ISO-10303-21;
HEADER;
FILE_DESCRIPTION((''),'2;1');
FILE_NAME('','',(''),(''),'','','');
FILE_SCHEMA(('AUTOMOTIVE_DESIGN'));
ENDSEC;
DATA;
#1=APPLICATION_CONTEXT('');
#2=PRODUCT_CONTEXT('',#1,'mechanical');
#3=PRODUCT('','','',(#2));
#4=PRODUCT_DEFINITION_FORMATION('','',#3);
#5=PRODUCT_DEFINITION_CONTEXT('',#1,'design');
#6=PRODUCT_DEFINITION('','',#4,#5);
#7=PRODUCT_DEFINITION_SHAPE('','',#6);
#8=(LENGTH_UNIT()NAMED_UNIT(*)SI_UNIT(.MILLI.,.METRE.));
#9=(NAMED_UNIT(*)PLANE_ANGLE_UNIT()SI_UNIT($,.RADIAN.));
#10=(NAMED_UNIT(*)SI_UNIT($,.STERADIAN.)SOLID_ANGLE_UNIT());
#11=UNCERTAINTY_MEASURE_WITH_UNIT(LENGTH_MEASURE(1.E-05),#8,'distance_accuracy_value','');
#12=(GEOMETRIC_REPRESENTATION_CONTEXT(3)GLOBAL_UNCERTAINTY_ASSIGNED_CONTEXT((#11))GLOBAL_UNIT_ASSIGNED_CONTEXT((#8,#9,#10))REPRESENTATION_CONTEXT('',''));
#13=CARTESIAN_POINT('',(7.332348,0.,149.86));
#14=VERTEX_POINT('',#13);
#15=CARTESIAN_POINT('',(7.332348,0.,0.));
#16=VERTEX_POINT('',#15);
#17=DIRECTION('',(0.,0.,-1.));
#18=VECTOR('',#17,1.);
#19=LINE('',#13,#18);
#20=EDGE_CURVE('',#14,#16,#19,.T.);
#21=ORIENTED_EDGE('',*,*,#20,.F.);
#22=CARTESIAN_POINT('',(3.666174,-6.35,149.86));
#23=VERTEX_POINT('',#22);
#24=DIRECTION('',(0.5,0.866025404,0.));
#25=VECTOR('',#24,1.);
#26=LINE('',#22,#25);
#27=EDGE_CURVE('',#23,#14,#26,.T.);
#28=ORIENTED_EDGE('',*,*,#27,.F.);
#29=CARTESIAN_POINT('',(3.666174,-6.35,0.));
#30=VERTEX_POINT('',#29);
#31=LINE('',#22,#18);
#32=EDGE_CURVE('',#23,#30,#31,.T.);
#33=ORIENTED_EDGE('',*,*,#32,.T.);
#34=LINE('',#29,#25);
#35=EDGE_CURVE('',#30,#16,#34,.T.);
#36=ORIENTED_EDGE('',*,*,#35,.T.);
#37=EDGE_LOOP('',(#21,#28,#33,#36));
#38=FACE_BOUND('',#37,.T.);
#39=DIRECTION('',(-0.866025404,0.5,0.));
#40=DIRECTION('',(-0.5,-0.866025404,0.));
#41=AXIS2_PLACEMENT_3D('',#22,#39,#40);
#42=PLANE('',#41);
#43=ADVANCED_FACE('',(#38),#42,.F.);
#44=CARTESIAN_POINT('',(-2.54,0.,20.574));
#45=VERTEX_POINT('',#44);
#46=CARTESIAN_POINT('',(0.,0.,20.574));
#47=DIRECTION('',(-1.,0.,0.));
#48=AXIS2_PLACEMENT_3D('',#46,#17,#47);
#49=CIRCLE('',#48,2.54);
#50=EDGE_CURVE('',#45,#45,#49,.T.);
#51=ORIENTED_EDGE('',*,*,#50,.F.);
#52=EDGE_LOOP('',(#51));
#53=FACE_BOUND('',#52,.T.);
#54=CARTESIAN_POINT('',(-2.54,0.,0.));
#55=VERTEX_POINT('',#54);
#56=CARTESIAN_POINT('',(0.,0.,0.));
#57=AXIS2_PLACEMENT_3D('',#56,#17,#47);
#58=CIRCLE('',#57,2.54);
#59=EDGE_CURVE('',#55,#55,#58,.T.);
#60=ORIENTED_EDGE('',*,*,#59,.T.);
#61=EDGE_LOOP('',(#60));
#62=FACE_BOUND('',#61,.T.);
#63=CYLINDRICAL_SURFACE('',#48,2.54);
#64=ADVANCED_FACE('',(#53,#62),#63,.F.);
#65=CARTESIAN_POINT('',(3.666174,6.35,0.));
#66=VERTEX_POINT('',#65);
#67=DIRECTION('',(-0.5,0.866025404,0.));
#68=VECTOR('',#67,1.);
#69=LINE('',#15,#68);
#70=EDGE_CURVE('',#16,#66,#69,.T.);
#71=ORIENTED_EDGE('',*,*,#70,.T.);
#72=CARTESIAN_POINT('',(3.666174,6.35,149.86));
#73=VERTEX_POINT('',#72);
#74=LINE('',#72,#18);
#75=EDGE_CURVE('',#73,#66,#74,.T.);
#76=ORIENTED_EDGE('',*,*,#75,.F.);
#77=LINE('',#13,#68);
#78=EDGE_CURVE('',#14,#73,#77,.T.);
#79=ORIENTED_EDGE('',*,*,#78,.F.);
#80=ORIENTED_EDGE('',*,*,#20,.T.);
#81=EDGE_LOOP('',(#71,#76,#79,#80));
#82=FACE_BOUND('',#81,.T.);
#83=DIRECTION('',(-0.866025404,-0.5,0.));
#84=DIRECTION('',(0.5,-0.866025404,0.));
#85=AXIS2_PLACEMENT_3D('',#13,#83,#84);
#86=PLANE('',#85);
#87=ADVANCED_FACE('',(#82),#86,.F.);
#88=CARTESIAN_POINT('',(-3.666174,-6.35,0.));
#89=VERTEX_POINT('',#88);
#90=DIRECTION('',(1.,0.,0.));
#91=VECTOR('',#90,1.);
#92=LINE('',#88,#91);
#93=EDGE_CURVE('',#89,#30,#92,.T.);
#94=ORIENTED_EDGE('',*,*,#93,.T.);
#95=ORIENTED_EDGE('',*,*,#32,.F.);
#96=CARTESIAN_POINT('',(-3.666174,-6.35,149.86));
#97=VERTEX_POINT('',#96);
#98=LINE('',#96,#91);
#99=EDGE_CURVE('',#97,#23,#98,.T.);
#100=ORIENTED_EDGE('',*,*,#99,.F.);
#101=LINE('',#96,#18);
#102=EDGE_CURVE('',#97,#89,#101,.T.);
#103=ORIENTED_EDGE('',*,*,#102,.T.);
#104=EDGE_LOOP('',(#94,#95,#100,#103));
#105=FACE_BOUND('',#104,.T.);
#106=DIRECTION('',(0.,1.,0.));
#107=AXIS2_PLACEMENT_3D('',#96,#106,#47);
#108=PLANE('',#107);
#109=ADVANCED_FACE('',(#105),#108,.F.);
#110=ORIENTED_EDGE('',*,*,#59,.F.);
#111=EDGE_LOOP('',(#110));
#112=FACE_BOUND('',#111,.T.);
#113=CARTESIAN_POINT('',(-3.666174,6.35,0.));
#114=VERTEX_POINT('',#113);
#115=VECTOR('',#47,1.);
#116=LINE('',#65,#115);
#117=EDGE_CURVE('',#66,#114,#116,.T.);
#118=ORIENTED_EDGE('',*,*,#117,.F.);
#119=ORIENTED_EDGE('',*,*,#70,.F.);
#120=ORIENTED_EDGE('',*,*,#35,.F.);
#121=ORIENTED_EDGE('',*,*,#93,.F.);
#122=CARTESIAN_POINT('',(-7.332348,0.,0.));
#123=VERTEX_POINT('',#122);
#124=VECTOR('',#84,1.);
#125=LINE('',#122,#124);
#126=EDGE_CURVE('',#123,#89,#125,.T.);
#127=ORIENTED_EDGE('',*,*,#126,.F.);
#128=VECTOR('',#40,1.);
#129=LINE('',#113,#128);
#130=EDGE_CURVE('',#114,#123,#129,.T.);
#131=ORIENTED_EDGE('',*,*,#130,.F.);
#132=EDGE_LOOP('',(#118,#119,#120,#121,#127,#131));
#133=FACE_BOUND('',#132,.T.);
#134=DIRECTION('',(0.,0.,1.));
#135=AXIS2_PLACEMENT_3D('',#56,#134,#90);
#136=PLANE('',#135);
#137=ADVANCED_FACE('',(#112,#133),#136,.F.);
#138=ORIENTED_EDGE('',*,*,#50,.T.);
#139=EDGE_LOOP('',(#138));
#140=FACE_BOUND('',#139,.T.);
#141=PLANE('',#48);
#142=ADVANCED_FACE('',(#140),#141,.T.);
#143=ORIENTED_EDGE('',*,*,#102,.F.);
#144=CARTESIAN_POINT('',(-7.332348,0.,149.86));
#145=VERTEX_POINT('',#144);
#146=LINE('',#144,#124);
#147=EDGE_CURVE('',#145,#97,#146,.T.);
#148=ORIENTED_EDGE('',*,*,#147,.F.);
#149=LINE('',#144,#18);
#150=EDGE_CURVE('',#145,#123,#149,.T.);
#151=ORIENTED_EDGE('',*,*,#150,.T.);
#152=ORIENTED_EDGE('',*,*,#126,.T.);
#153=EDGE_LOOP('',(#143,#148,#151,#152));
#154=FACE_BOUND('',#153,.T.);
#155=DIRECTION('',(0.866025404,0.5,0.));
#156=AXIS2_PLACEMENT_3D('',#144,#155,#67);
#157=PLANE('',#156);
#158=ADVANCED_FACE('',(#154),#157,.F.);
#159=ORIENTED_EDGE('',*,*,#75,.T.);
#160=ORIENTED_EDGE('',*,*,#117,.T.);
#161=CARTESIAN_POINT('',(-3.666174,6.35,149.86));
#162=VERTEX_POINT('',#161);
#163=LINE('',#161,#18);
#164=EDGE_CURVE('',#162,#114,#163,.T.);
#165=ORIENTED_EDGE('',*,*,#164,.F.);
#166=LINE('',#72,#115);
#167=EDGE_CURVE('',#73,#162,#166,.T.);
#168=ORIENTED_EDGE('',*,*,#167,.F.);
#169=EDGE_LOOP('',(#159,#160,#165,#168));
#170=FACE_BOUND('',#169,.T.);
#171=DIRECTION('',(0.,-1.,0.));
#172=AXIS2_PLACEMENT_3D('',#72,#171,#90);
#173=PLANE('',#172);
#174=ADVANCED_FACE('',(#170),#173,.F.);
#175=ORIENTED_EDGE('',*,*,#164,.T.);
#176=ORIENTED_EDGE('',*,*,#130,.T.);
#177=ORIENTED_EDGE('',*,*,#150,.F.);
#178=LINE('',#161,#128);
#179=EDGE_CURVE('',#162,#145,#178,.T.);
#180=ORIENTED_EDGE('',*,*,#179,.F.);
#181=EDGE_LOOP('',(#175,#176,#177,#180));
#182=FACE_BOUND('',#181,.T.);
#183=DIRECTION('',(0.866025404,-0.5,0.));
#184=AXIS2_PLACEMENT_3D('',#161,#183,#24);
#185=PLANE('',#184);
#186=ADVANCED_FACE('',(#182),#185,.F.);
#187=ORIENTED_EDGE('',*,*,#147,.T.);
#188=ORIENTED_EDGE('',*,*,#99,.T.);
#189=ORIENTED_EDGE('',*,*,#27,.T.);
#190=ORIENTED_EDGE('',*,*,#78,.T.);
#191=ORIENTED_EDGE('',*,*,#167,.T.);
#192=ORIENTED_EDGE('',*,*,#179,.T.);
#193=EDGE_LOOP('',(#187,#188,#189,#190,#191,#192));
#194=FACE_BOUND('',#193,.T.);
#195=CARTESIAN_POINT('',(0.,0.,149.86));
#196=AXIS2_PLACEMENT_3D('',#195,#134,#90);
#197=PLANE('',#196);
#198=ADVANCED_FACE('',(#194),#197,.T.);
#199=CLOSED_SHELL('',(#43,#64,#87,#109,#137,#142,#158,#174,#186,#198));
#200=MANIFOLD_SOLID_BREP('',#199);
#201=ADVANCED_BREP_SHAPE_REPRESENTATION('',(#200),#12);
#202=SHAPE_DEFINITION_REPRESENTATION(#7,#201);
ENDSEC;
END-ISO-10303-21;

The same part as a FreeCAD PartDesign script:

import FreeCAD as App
import Part
import Sketcher
Q = App.Units.Quantity


def add_polygon(sketch, points):
    """Adds a closed chain of lines whose ends are joined by coincident constraints."""
    first, n = sketch.GeometryCount, len(points)
    for a, b in zip(points, points[1:] + points[:1]):
        sketch.addGeometry(Part.LineSegment(App.Vector(*a, 0), App.Vector(*b, 0)), False)
    for i in range(n):
        sketch.addConstraint(Sketcher.Constraint("Coincident", first + i, 2, first + (i + 1) % n, 1))

doc = App.newDocument("Part")
body = doc.addObject("PartDesign::Body", "Body")

sketch1 = doc.addObject("Sketcher::SketchObject", "Sketch")
body.addObject(sketch1)
sketch1.AttachmentSupport = (doc.XY_Plane, [""])
sketch1.MapMode = "FlatFace"
add_polygon(sketch1, [(7, 0), (4, 6), (-4, 6), (-7, 0), (-4, -6), (4, -6)])
sketch1.addConstraint(Sketcher.Constraint("Horizontal", 1))
sketch1.addConstraint(Sketcher.Constraint("Horizontal", 4))
sketch1.addConstraint(Sketcher.Constraint("Symmetric", 0, 2, 3, 2, -1, 1))
sketch1.addConstraint(Sketcher.Constraint("Symmetric", 2, 2, 5, 2, -1, 1))
sketch1.addConstraint(Sketcher.Constraint("PointOnObject", 2, 2, -1))
sketch1.addConstraint(Sketcher.Constraint("Parallel", 2, 5))
sketch1.addConstraint(Sketcher.Constraint("Vertical", 1, 2, 3, 2))
sketch1.addConstraint(Sketcher.Constraint("Angle", 0, Q("120 deg")))
sketch1.addConstraint(Sketcher.Constraint("DistanceY", 3, 2, 1, 2, Q("0.5 in")))
sketch1.addConstraint(Sketcher.Constraint("DistanceX", 1, 2, 1, 1, 7.332348))
pad1 = doc.addObject("PartDesign::Pad", "Pad")
body.addObject(pad1)
pad1.Profile = sketch1
pad1.Length = Q("5.9 in")

sketch2 = doc.addObject("Sketcher::SketchObject", "Sketch001")
body.addObject(sketch2)
sketch2.AttachmentSupport = (doc.XY_Plane, [""])
sketch2.MapMode = "FlatFace"
sketch2.addGeometry(Part.Circle(App.Vector(0, 0, 0), App.Vector(0, 0, 1), 2.5), False)
sketch2.addConstraint(Sketcher.Constraint("Coincident", 0, 3, -1, 1))
sketch2.addConstraint(Sketcher.Constraint("Diameter", 0, Q("0.2 in")))
pocket1 = doc.addObject("PartDesign::Pocket", "Pocket")
body.addObject(pocket1)
pocket1.Profile = sketch2
pocket1.Length = Q("0.81 in")
pocket1.Reversed = True

doc.recompute()
